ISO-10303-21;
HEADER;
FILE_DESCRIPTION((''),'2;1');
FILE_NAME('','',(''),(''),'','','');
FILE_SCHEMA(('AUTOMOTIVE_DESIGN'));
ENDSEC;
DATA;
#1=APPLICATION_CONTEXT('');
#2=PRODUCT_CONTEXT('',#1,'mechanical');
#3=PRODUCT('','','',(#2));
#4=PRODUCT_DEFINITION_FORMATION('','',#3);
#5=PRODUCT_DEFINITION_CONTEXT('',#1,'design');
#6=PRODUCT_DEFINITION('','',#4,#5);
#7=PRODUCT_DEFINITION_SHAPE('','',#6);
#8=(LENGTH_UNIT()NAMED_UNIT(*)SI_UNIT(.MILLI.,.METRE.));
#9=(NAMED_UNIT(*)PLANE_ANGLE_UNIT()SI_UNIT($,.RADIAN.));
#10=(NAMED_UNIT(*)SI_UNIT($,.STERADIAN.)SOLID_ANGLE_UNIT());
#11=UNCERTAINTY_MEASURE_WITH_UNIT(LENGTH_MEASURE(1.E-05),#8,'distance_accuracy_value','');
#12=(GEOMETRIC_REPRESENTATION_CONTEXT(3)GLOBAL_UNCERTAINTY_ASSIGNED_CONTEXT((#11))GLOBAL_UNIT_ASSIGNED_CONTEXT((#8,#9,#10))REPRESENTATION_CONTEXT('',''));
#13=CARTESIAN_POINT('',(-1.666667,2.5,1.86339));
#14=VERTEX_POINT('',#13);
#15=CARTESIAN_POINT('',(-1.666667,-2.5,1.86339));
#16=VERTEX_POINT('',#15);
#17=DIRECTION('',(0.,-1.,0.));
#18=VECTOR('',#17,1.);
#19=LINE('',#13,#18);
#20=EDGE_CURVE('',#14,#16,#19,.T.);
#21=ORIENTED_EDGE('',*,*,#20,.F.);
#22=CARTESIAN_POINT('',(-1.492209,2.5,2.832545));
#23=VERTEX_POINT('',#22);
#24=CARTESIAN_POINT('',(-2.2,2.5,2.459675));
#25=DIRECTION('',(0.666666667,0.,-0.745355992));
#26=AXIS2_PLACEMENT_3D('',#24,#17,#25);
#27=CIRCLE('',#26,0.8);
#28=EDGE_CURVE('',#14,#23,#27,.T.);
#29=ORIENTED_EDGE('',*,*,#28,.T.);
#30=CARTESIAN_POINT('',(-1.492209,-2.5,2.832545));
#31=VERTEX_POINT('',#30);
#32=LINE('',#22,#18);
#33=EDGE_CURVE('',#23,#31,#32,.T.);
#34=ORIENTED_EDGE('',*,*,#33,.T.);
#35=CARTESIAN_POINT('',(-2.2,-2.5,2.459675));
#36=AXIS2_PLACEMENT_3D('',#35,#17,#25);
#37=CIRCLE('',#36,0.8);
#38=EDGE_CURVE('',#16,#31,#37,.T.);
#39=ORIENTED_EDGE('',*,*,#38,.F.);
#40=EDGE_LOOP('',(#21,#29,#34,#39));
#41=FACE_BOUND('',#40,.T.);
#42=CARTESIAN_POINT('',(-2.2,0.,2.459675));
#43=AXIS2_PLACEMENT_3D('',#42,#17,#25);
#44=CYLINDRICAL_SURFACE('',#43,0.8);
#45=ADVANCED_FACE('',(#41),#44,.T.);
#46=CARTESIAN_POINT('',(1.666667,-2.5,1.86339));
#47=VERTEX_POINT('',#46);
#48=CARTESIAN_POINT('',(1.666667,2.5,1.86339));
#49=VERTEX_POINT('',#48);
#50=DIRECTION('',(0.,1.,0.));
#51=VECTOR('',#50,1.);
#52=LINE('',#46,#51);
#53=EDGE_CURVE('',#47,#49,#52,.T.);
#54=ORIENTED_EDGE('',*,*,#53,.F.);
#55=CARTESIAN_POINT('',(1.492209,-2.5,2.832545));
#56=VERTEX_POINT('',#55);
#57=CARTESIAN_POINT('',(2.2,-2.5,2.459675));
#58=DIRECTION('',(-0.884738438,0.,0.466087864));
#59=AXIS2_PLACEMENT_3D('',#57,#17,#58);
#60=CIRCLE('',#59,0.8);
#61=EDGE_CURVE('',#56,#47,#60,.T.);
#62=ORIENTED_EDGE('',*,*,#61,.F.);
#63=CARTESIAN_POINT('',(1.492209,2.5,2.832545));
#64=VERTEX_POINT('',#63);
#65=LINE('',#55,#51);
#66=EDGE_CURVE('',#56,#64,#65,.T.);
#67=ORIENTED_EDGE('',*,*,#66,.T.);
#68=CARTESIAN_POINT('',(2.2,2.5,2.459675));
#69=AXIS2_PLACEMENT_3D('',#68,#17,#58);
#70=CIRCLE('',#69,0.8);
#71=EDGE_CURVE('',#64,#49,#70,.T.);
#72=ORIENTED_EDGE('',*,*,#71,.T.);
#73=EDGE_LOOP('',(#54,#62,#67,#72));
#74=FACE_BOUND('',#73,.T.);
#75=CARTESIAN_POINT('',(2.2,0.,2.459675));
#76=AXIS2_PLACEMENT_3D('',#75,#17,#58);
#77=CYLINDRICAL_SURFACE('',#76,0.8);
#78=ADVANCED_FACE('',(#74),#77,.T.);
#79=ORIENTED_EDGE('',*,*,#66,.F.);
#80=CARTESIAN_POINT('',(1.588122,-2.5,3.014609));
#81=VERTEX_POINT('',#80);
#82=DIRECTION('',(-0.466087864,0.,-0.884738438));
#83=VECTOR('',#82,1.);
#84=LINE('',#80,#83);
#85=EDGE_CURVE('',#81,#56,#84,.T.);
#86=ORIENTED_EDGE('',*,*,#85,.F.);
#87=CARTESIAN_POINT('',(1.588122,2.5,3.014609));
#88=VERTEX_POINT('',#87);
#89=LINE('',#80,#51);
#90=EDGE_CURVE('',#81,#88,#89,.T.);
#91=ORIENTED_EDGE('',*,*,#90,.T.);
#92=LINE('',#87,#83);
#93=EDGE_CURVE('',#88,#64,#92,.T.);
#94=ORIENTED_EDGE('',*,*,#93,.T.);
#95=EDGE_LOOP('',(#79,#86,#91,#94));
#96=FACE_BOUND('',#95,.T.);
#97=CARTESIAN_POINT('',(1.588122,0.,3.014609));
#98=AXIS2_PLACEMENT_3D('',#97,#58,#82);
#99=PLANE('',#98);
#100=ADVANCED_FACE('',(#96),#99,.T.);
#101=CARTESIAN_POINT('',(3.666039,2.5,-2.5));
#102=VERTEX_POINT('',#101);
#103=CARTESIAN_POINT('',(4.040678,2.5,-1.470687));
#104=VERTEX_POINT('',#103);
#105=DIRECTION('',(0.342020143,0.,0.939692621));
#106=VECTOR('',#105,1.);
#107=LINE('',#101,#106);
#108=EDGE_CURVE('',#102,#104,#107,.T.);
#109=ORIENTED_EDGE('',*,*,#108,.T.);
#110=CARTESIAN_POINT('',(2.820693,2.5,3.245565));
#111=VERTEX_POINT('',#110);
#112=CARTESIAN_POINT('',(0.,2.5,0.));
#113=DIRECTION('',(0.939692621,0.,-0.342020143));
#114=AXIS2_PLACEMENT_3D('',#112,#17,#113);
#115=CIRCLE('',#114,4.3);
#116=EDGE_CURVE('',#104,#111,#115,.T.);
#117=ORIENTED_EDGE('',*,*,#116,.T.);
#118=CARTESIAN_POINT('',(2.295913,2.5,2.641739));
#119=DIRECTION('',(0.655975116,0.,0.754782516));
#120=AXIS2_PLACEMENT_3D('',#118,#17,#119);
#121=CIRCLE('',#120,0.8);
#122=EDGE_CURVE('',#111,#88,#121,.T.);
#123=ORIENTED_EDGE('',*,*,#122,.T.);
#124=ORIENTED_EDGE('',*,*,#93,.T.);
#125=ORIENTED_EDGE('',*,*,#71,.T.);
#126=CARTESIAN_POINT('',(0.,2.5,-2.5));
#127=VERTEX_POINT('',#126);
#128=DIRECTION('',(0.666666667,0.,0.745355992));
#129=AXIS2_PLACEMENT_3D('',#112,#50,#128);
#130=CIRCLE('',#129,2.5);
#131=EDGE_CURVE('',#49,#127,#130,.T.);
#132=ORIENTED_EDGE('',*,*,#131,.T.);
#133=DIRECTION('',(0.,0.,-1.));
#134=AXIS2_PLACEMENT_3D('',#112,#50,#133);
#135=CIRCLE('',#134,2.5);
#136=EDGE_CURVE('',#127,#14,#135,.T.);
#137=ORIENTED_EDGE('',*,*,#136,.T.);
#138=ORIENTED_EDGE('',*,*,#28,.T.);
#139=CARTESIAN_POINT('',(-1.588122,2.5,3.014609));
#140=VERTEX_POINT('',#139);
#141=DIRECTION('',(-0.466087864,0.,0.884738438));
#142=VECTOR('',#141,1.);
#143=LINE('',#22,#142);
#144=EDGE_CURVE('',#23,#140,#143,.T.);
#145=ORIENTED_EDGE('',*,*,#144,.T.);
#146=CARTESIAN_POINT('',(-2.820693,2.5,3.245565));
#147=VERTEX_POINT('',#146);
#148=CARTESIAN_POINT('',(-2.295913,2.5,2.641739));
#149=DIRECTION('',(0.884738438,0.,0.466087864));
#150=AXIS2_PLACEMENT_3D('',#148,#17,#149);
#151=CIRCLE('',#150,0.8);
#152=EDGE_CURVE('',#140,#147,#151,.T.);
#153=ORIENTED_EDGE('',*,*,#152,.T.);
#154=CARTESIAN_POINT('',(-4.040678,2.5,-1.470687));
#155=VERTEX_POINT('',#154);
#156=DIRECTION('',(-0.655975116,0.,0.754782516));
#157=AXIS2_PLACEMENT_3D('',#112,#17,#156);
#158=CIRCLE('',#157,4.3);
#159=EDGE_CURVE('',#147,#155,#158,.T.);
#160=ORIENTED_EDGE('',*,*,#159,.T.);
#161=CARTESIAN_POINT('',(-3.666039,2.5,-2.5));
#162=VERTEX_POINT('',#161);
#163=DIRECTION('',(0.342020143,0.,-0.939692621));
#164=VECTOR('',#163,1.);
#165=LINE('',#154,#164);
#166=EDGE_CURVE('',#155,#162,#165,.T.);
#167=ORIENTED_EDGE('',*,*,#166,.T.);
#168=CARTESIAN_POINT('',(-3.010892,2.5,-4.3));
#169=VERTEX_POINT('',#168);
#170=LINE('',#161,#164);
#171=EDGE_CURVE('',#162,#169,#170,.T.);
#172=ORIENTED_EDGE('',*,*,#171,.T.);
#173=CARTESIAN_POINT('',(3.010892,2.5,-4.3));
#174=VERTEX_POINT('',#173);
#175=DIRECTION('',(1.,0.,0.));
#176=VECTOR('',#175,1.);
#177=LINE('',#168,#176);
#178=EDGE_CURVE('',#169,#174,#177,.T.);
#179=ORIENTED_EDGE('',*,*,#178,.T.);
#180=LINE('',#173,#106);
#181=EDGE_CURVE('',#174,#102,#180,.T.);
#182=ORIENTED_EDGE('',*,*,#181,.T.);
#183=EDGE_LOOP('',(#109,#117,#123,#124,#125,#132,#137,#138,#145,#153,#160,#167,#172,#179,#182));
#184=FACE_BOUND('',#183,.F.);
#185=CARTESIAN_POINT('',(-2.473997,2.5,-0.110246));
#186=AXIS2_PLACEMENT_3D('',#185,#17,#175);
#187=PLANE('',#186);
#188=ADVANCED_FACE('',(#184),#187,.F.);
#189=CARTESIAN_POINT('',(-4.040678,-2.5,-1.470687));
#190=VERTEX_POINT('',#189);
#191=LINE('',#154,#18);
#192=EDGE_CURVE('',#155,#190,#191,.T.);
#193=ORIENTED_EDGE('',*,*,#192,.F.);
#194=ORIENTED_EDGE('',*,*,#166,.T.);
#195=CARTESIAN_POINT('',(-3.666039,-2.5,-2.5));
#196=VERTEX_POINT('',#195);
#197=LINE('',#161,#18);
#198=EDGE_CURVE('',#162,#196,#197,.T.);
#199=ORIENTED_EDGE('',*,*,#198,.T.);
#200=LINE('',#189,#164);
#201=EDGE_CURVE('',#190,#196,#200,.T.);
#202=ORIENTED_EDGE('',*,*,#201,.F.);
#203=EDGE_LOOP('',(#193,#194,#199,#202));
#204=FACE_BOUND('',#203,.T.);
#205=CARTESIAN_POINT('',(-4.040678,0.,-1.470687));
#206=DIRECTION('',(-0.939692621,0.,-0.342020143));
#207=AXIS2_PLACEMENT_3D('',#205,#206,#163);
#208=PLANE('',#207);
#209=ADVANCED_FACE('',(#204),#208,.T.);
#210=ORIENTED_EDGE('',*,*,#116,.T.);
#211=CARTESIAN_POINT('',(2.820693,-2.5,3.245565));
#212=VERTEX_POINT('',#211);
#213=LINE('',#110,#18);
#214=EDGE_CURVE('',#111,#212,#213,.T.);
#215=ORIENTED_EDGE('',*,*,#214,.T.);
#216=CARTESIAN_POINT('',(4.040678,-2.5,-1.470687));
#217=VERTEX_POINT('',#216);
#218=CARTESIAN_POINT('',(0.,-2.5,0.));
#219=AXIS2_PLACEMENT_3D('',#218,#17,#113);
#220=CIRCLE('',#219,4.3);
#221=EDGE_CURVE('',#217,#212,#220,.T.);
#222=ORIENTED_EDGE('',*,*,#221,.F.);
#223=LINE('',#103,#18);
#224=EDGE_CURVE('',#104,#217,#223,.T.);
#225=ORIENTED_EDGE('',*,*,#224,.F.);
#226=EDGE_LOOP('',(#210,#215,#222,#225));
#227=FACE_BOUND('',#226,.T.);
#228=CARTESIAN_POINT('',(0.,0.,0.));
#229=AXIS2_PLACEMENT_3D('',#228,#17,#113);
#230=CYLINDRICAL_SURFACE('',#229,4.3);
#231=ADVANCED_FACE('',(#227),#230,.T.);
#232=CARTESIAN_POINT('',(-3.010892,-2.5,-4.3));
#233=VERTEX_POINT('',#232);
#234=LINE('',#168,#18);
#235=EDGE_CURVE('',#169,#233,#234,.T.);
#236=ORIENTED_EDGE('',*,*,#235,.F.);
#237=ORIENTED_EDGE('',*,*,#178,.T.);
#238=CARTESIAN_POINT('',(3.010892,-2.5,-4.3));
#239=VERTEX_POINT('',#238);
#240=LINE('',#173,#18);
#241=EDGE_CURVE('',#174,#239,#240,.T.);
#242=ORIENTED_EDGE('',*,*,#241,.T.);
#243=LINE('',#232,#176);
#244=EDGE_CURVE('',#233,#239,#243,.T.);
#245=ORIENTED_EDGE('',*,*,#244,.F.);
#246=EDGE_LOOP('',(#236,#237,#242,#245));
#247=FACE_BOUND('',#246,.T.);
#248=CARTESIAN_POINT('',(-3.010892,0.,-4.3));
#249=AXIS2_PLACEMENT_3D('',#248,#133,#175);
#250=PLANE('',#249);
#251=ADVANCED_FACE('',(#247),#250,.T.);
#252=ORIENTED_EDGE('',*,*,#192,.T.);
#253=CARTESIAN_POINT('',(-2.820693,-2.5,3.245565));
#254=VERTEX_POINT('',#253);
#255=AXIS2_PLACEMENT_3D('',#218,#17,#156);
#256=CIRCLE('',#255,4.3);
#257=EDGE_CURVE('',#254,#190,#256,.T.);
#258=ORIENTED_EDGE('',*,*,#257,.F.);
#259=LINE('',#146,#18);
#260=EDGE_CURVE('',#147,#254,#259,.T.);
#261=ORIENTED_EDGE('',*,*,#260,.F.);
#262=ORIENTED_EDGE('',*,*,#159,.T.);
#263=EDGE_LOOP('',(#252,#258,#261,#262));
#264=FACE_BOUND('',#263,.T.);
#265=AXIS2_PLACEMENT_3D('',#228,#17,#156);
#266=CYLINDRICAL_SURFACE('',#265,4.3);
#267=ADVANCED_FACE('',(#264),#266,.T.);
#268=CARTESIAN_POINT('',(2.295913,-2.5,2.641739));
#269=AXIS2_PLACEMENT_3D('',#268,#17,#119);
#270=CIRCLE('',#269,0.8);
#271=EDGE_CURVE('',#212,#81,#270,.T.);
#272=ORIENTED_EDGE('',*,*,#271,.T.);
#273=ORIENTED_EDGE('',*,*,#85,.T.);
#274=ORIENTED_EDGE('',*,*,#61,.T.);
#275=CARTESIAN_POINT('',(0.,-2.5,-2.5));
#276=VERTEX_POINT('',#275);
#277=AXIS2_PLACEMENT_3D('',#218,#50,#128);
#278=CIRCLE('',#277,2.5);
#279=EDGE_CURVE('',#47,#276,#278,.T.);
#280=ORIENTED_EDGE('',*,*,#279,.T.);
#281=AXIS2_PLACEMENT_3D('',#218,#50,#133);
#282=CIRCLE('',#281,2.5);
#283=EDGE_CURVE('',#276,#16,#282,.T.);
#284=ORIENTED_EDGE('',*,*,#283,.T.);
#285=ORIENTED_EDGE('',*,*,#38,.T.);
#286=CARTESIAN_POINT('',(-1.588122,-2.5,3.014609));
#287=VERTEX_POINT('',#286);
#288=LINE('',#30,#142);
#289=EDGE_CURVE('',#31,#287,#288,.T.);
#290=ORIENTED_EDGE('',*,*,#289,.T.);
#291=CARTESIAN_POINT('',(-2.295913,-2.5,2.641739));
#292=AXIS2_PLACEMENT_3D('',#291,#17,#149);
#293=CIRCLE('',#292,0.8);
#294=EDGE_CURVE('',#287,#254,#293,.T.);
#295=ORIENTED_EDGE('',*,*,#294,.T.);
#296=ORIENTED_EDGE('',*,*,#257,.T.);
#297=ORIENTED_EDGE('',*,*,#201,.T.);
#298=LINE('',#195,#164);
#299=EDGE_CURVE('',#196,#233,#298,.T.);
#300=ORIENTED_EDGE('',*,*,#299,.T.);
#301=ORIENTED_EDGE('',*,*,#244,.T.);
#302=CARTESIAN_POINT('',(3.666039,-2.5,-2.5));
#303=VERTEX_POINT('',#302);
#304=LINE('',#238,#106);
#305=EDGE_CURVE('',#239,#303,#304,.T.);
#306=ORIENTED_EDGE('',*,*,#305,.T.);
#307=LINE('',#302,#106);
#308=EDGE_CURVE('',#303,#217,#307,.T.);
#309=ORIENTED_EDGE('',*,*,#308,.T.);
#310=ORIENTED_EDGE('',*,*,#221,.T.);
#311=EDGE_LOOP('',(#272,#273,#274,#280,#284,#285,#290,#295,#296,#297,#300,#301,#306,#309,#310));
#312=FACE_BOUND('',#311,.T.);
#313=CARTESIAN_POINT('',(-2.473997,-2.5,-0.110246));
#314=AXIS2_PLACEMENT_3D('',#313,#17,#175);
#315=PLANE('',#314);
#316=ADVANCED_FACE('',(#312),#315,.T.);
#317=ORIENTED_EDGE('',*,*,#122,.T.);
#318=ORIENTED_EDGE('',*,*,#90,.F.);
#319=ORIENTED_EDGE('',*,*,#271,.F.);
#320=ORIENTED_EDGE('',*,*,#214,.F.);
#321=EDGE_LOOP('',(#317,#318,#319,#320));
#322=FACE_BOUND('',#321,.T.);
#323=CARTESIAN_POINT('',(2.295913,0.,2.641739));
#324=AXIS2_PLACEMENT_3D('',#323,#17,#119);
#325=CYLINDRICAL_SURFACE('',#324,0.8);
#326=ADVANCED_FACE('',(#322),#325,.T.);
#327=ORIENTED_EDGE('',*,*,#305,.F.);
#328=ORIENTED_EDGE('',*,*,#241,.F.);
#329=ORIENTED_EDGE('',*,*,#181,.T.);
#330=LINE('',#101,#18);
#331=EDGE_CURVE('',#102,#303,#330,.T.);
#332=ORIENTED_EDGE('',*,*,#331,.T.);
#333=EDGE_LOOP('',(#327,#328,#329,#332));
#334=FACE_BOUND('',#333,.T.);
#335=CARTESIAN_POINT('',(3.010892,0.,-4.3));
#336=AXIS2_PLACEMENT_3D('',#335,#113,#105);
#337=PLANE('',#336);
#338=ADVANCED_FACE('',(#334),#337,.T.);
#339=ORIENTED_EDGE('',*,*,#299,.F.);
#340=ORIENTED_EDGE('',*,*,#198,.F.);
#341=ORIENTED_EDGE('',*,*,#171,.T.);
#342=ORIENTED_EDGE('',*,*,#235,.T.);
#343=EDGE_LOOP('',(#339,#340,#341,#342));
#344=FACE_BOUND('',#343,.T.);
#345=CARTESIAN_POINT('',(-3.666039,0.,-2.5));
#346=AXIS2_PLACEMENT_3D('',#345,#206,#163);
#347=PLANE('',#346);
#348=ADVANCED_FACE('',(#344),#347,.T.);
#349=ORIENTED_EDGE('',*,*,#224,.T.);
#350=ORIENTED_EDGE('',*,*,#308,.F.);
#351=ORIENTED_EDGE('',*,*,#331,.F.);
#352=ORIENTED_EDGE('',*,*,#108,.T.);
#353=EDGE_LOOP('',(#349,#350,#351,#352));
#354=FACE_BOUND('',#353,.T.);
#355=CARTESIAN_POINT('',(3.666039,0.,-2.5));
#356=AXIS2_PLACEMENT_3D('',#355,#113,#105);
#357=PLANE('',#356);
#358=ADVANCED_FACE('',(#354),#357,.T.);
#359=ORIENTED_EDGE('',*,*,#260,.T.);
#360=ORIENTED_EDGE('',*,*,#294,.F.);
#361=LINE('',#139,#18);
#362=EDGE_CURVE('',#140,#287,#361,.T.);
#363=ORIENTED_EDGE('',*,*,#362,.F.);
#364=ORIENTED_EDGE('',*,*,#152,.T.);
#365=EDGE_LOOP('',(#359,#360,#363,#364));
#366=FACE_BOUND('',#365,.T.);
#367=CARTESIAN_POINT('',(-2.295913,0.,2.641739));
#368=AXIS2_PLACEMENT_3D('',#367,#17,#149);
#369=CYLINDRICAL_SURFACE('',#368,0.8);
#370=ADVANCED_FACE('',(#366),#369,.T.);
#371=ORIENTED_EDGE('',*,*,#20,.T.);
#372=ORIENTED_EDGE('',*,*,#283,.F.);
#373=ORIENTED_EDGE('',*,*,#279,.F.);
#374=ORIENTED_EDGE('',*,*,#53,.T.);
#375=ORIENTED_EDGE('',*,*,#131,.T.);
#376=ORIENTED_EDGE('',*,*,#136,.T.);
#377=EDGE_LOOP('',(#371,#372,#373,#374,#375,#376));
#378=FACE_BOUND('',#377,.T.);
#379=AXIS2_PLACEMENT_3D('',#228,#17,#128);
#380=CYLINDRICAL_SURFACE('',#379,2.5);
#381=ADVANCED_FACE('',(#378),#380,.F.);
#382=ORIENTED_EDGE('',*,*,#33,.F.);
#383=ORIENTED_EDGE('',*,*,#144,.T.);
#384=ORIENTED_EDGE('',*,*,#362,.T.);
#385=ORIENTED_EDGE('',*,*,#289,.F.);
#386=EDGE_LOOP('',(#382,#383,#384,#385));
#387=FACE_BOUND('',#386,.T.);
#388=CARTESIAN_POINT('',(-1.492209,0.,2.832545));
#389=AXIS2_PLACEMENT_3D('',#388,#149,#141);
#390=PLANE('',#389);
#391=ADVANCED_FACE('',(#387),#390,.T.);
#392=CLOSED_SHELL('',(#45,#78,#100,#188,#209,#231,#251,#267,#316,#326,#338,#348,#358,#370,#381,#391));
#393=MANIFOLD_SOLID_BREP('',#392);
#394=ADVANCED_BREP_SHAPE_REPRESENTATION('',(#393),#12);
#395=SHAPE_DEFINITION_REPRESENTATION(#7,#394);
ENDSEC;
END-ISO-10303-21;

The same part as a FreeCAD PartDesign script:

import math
import FreeCAD as App
import Part
import Sketcher
from FreeCAD import Vector
Q = App.Units.Quantity

doc = App.newDocument("Part")
params = doc.addObject("Spreadsheet::Sheet", "Params")
for row, (alias, value) in enumerate([
    ("sketch1_radius", "2.5 mm"),
    ("sketch1_radius2", "0.8 mm"),
    ("sketch1_radius3", "4.3 mm"),
    ("pad1_length", "5 mm"),
], start=1):
    params.set(f"A{row}", alias)
    params.set(f"B{row}", "=" + value)
    params.setAlias(f"B{row}", alias)

body = doc.addObject("PartDesign::Body", "Body")

# Sketch on XZ plane
sketch1 = body.newObject("Sketcher::SketchObject", "Sketch")
sketch1.AttachmentSupport = (doc.getObject("XZ_Plane"), [""])
sketch1.MapMode = "FlatFace"
sketch1.addGeometry([
    Part.ArcOfCircle(Part.Circle(Vector(0, 0, 0), Vector(0, 0, 1), 2.5), math.radians(-90), math.radians(48)),  # 0
    Part.ArcOfCircle(Part.Circle(Vector(0, 0, 0), Vector(0, 0, 1), 2.5), math.radians(132), math.radians(270)),  # 1
    Part.ArcOfCircle(Part.Circle(Vector(-2.2, 2.46, 0), Vector(0, 0, 1), 0.8), math.radians(-48), math.radians(28)),  # 2
    Part.LineSegment(Vector(-1.49, 2.83, 0), Vector(-1.59, 3.01, 0)),  # 3
    Part.ArcOfCircle(Part.Circle(Vector(-2.3, 2.64, 0), Vector(0, 0, 1), 0.8), math.radians(28), math.radians(131)),  # 4
    Part.ArcOfCircle(Part.Circle(Vector(0, 0, 0), Vector(0, 0, 1), 4.3), math.radians(131), math.radians(200)),  # 5
    Part.LineSegment(Vector(-4.04, -1.47, 0), Vector(-3.67, -2.5, 0)),  # 6
    Part.LineSegment(Vector(-3.67, -2.5, 0), Vector(-3.01, -4.3, 0)),  # 7
    Part.LineSegment(Vector(-3.01, -4.3, 0), Vector(3.01, -4.3, 0)),  # 8
    Part.LineSegment(Vector(3.01, -4.3, 0), Vector(3.67, -2.5, 0)),  # 9
    Part.LineSegment(Vector(3.67, -2.5, 0), Vector(4.04, -1.47, 0)),  # 10
    Part.ArcOfCircle(Part.Circle(Vector(0, 0, 0), Vector(0, 0, 1), 4.3), math.radians(-20), math.radians(49)),  # 11
    Part.ArcOfCircle(Part.Circle(Vector(2.3, 2.64, 0), Vector(0, 0, 1), 0.8), math.radians(49), math.radians(152)),  # 12
    Part.LineSegment(Vector(1.59, 3.01, 0), Vector(1.49, 2.83, 0)),  # 13
    Part.ArcOfCircle(Part.Circle(Vector(2.2, 2.46, 0), Vector(0, 0, 1), 0.8), math.radians(152), math.radians(228)),  # 14
], False)
sketch1.addConstraint([
    Sketcher.Constraint("Tangent", 0, 1, 1, 2),
    Sketcher.Constraint("Tangent", 1, 1, 2, 1),
    Sketcher.Constraint("Tangent", 2, 2, 3, 1),
    Sketcher.Constraint("Tangent", 3, 2, 4, 1),
    Sketcher.Constraint("Tangent", 4, 2, 5, 1),
    Sketcher.Constraint("Tangent", 5, 2, 6, 1),
    Sketcher.Constraint("Coincident", 6, 2, 7, 1),
    Sketcher.Constraint("Coincident", 7, 2, 8, 1),
    Sketcher.Constraint("Coincident", 8, 2, 9, 1),
    Sketcher.Constraint("Coincident", 9, 2, 10, 1),
    Sketcher.Constraint("Tangent", 10, 2, 11, 1),
    Sketcher.Constraint("Tangent", 11, 2, 12, 1),
    Sketcher.Constraint("Tangent", 12, 2, 13, 1),
    Sketcher.Constraint("Tangent", 13, 2, 14, 1),
    Sketcher.Constraint("Tangent", 14, 2, 0, 2),
    Sketcher.Constraint("Horizontal", 8),
    Sketcher.Constraint("Coincident", 0, 3, -1, 1),
    Sketcher.Constraint("Coincident", 5, 3, -1, 1),
    Sketcher.Constraint("Coincident", 11, 3, -1, 1),
    Sketcher.Constraint("Equal", 0, 1),
    Sketcher.Constraint("Equal", 2, 4),
    Sketcher.Constraint("Equal", 5, 11),
    Sketcher.Constraint("Equal", 4, 12),
    Sketcher.Constraint("Equal", 12, 14),
    Sketcher.Constraint("Symmetric", 6, 2, 9, 2, -2),
    Sketcher.Constraint("Symmetric", 3, 2, 12, 2, -2),
    Sketcher.Constraint("PointOnObject", 0, 1, -2),
    Sketcher.Constraint("Parallel", 6, 7),
    Sketcher.Constraint("Parallel", 9, 10),
    Sketcher.Constraint("Horizontal", 0, 1, 6, 2),
    Sketcher.Constraint("Radius", 0, 2.5),
    Sketcher.Constraint("Radius", 2, 0.8),
    Sketcher.Constraint("Radius", 5, 4.3),
    Sketcher.Constraint("Angle", 6, Q("-70 deg")),
    Sketcher.Constraint("DistanceX", 2, 3, -1, 1, 2.2),
    Sketcher.Constraint("DistanceY", 7, 2, -1, 1, 4.3),
    Sketcher.Constraint("DistanceY", -1, 1, 4, 3, 2.641739),
])
sketch1.setExpression("Constraints[30]", "Params.sketch1_radius")
sketch1.setExpression("Constraints[31]", "Params.sketch1_radius2")
sketch1.setExpression("Constraints[32]", "Params.sketch1_radius3")
pad1 = body.newObject("PartDesign::Pad", "Pad")
pad1.Profile = sketch1
pad1.setExpression("Length", "Params.pad1_length")
pad1.Midplane = True

doc.recompute()
